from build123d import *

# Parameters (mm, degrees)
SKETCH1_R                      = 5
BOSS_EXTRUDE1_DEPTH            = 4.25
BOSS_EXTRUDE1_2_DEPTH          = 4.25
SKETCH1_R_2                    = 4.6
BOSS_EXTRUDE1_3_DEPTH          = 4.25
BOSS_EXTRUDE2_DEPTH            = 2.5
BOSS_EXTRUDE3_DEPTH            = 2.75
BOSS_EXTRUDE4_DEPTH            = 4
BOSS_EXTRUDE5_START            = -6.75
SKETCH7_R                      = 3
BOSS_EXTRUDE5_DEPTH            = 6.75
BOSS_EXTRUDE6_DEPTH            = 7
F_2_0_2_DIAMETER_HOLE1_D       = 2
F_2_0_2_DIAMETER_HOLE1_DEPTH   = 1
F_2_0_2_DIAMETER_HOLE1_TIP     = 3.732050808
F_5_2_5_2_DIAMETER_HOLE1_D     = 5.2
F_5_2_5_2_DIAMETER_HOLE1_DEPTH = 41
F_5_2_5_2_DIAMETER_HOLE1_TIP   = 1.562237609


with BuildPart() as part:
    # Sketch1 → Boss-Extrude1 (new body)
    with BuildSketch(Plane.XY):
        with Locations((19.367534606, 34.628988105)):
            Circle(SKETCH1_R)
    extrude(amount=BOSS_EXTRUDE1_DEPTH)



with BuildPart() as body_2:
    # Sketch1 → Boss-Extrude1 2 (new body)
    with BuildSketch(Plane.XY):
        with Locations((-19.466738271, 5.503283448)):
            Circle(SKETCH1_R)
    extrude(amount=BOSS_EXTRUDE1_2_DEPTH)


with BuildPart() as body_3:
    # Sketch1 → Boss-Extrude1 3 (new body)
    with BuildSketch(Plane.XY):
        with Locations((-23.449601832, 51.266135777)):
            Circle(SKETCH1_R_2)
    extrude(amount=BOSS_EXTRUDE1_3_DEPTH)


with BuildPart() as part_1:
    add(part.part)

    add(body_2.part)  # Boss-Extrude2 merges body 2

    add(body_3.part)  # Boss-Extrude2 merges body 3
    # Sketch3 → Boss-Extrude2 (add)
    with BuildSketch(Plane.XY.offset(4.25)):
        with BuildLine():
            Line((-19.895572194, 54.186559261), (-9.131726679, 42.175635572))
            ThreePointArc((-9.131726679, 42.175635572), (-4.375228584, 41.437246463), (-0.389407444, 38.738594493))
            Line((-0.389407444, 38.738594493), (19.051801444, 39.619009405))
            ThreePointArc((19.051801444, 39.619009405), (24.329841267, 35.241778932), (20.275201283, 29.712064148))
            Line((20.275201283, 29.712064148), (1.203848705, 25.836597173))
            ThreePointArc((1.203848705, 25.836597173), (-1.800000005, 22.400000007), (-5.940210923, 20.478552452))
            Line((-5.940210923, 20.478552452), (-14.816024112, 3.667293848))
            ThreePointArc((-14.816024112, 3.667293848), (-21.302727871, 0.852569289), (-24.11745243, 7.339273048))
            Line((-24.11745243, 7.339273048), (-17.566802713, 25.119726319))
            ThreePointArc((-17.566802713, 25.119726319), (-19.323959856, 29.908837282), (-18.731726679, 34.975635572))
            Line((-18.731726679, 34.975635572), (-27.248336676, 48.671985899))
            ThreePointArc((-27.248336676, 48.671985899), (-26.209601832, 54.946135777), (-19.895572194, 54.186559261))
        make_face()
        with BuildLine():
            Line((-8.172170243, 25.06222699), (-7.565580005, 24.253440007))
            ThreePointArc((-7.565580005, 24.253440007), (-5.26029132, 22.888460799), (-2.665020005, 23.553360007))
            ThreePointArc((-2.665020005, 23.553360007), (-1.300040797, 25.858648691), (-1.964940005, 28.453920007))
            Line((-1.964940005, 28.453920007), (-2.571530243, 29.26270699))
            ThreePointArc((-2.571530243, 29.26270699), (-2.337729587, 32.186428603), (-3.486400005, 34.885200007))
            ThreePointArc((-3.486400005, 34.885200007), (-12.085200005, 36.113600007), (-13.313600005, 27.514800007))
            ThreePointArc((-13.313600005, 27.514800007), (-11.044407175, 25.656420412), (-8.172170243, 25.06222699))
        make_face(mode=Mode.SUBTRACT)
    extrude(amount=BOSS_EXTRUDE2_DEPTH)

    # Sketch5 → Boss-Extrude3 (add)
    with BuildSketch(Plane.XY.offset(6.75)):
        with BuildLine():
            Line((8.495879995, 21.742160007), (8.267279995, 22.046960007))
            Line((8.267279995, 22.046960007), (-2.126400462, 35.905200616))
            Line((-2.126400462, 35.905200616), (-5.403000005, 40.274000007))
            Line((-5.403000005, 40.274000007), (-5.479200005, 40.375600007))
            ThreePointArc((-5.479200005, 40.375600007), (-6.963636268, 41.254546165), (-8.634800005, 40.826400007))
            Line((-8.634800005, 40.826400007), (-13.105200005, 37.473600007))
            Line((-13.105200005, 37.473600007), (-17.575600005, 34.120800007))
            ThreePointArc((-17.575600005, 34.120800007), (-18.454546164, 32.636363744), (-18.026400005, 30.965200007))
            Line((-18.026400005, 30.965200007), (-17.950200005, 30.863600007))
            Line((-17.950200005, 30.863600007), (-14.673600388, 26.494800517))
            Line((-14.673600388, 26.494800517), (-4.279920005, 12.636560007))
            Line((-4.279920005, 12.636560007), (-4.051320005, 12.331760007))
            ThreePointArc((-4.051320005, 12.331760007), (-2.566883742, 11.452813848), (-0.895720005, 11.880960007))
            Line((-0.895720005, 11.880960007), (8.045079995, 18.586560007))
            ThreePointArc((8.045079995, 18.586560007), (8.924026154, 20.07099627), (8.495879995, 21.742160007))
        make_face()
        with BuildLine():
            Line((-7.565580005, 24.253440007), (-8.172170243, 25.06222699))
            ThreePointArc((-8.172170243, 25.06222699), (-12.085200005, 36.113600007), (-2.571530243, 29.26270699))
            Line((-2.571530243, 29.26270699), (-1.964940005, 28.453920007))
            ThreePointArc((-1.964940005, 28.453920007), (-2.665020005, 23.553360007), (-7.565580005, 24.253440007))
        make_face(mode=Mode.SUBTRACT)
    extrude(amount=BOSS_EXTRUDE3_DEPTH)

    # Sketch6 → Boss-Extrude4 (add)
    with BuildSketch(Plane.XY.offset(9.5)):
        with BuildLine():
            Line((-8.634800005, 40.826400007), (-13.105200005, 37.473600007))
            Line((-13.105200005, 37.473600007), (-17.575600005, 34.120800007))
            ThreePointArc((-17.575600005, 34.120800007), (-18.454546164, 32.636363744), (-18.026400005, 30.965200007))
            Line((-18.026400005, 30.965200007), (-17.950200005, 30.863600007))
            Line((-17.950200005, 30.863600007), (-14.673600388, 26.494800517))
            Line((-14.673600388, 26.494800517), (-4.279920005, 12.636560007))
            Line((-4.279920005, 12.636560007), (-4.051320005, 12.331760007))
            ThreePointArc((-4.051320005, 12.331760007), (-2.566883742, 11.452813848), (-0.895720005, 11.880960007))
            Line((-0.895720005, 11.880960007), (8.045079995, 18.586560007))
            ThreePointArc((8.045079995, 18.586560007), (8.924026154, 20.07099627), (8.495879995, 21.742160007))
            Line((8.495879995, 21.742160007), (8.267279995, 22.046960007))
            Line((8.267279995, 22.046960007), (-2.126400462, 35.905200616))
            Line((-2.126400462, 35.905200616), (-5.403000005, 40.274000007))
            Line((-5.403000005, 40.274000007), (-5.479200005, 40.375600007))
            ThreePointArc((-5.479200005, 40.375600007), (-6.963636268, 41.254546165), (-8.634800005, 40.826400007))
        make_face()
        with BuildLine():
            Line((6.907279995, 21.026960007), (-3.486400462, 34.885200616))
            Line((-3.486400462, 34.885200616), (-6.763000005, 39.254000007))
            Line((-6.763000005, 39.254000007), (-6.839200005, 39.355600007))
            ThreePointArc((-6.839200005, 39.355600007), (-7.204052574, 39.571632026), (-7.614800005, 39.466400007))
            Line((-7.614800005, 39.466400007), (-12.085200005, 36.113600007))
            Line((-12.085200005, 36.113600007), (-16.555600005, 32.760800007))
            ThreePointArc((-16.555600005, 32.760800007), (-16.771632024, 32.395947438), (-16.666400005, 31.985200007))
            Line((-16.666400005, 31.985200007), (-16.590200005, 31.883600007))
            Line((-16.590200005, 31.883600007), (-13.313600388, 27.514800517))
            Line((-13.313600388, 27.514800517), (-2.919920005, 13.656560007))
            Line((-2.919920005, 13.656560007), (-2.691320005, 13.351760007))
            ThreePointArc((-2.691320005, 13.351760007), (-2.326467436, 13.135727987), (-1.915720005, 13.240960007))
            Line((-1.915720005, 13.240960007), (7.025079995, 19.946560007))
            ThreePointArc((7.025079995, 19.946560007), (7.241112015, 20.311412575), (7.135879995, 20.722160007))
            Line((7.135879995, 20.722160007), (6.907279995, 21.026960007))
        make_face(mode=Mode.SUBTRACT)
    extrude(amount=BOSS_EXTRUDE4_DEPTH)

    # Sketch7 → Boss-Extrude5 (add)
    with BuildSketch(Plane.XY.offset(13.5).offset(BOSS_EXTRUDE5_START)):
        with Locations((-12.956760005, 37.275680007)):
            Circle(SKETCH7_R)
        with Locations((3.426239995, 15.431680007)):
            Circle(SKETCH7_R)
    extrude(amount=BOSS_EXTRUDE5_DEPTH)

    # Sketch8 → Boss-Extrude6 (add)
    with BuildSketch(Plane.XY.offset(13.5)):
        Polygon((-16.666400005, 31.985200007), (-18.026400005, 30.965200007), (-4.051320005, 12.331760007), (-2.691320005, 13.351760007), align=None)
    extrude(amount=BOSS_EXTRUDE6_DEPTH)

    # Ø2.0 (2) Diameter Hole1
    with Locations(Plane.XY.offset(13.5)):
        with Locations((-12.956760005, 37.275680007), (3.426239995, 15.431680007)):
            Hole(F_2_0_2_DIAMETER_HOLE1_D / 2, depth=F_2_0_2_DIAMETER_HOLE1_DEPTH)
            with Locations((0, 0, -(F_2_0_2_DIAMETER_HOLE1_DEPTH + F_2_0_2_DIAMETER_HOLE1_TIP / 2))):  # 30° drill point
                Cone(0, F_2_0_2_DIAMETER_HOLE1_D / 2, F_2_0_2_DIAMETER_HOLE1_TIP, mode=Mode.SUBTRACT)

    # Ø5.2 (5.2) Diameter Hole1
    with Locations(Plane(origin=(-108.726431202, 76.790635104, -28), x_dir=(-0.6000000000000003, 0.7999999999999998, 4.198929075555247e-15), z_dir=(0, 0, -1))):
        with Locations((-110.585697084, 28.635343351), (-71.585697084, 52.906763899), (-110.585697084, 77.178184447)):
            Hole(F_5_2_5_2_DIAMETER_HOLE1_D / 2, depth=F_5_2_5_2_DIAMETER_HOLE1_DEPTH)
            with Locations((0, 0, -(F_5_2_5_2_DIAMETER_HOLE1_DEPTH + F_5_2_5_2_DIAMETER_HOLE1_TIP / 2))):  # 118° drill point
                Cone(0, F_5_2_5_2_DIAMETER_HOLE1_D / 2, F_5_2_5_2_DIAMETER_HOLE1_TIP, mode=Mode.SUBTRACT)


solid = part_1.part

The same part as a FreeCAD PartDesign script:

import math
import FreeCAD as App
import Part
import Sketcher
Q = App.Units.Quantity


def add_polygon(sketch, points):
    """Adds a closed chain of lines whose ends are joined by coincident constraints."""
    first, n = sketch.GeometryCount, len(points)
    for a, b in zip(points, points[1:] + points[:1]):
        sketch.addGeometry(Part.LineSegment(App.Vector(*a, 0), App.Vector(*b, 0)), False)
    for i in range(n):
        sketch.addConstraint(Sketcher.Constraint("Coincident", first + i, 2, first + (i + 1) % n, 1))

doc = App.newDocument("Part")
body = doc.addObject("PartDesign::Body", "Body")

# Sketch on XY plane
sketch1 = doc.addObject("Sketcher::SketchObject", "Sketch")
body.addObject(sketch1)
sketch1.AttachmentSupport = (doc.XY_Plane, [""])
sketch1.MapMode = "FlatFace"
sketch1.addGeometry(Part.Circle(App.Vector(19, 35, 0), App.Vector(0, 0, 1), 5), False)
sketch1.addConstraint([
    Sketcher.Constraint("Diameter", 0, Q("10 mm")),
    Sketcher.Constraint("DistanceY", -1, 1, 0, 3, Q("34.628988 mm")),
    Sketcher.Constraint("DistanceX", -1, 1, 0, 3, Q("19.367535 mm")),
])
pad1 = doc.addObject("PartDesign::Pad", "Pad")
body.addObject(pad1)
pad1.Profile = sketch1
pad1.Length = 4.25
body2 = doc.addObject("PartDesign::Body", "Body001")

# Sketch on XY plane
sketch2 = doc.addObject("Sketcher::SketchObject", "Sketch001")
body2.addObject(sketch2)
sketch2.AttachmentSupport = (doc.getObject("XY_Plane001"), [""])
sketch2.MapMode = "FlatFace"
sketch2.addGeometry(Part.Circle(App.Vector(-19, 6, 0), App.Vector(0, 0, 1), 5), False)
sketch2.addConstraint([
    Sketcher.Constraint("Diameter", 0, Q("10 mm")),
    Sketcher.Constraint("DistanceX", 0, 3, -1, 1, Q("19.466738 mm")),
    Sketcher.Constraint("DistanceY", -1, 1, 0, 3, Q("5.503283 mm")),
])
pad2 = doc.addObject("PartDesign::Pad", "Pad001")
body2.addObject(pad2)
pad2.Profile = sketch2
pad2.Length = 4.25
body3 = doc.addObject("PartDesign::Body", "Body002")

# Sketch on XY plane
sketch3 = doc.addObject("Sketcher::SketchObject", "Sketch002")
body3.addObject(sketch3)
sketch3.AttachmentSupport = (doc.getObject("XY_Plane002"), [""])
sketch3.MapMode = "FlatFace"
sketch3.addGeometry(Part.Circle(App.Vector(-23.4, 51.3, 0), App.Vector(0, 0, 1), 4.6), False)
sketch3.addConstraint([
    Sketcher.Constraint("Diameter", 0, Q("9.2 mm")),
    Sketcher.Constraint("DistanceX", 0, 3, -1, 1, Q("23.449602 mm")),
    Sketcher.Constraint("DistanceY", -1, 1, 0, 3, Q("51.266136 mm")),
])
pad3 = doc.addObject("PartDesign::Pad", "Pad002")
body3.addObject(pad3)
pad3.Profile = sketch3
pad3.Length = 4.25
body.AllowCompound = True
doc.recompute()

boolean = doc.addObject("PartDesign::Boolean", "Boolean")
body.addObject(boolean)
boolean.Type = "Fuse"
boolean.addObjects([body2])
doc.recompute()

boolean2 = doc.addObject("PartDesign::Boolean", "Boolean001")
body.addObject(boolean2)
boolean2.Type = "Fuse"
boolean2.addObjects([body3])

# Sketch on XY plane
sketch4 = doc.addObject("Sketcher::SketchObject", "Sketch003")
body.addObject(sketch4)
sketch4.AttachmentSupport = (doc.XY_Plane, [""])
sketch4.MapMode = "FlatFace"
sketch4.AttachmentOffset = App.Placement(App.Vector(0, 0, 4.25), App.Rotation())
sketch4.addGeometry([
    Part.LineSegment(App.Vector(-9.1, 42.2, 0), App.Vector(-19.9, 54.2, 0)),  # 0
    Part.ArcOfCircle(Part.Circle(App.Vector(-23.4, 51.3, 0), App.Vector(0, 0, 1), 4.6), math.radians(39), math.radians(214)),  # 1
    Part.LineSegment(App.Vector(-27.2, 48.7, 0), App.Vector(-18.7, 35, 0)),  # 2
    Part.ArcOfCircle(Part.Circle(App.Vector(-8.4, 31.2, 0), App.Vector(0, 0, 1), 11), math.radians(160), math.radians(214)),  # 3
    Part.LineSegment(App.Vector(-17.6, 25.1, 0), App.Vector(-24.1, 7.3, 0)),  # 4
    Part.ArcOfCircle(Part.Circle(App.Vector(-19.5, 5.5, 0), App.Vector(0, 0, 1), 5), math.radians(158), math.radians(338)),  # 5
    Part.LineSegment(App.Vector(-14.8, 3.7, 0), App.Vector(-5.9, 20.5, 0)),  # 6
    Part.ArcOfCircle(Part.Circle(App.Vector(-8.4, 31.2, 0), App.Vector(0, 0, 1), 11), math.radians(-77), math.radians(-29)),  # 7
    Part.LineSegment(App.Vector(1.2, 25.8, 0), App.Vector(20.3, 29.7, 0)),  # 8
    Part.ArcOfCircle(Part.Circle(App.Vector(19.4, 34.6, 0), App.Vector(0, 0, 1), 5), math.radians(-80), math.radians(94)),  # 9
    Part.LineSegment(App.Vector(19.1, 39.6, 0), App.Vector(-0.4, 38.7, 0)),  # 10
    Part.ArcOfCircle(Part.Circle(App.Vector(-8.4, 31.2, 0), App.Vector(0, 0, 1), 11), math.radians(43), math.radians(94)),  # 11
    Part.ArcOfCircle(Part.Circle(App.Vector(-8.4, 31.2, 0), App.Vector(0, 0, 1), 6.1), math.radians(-143), math.radians(-88)),  # 12
    Part.ArcOfCircle(Part.Circle(App.Vector(-8.4, 31.2, 0), App.Vector(0, 0, 1), 6.1), math.radians(37), math.radians(217)),  # 13
    Part.ArcOfCircle(Part.Circle(App.Vector(-8.4, 31.2, 0), App.Vector(0, 0, 1), 6.1), math.radians(-18), math.radians(37)),  # 14
    Part.LineSegment(App.Vector(-2.6, 29.3, 0), App.Vector(-2, 28.5, 0)),  # 15
    Part.ArcOfCircle(Part.Circle(App.Vector(-4.8, 26.4, 0), App.Vector(0, 0, 1), 3.5), math.radians(-53), math.radians(37)),  # 16
    Part.ArcOfCircle(Part.Circle(App.Vector(-4.8, 26.4, 0), App.Vector(0, 0, 1), 3.5), math.radians(-143), math.radians(-53)),  # 17
    Part.LineSegment(App.Vector(-7.6, 24.3, 0), App.Vector(-8.2, 25.1, 0)),  # 18
], False)
sketch4.addConstraint([
    Sketcher.Constraint("Coincident", 0, 2, 1, 1),
    Sketcher.Constraint("Coincident", 1, 2, 2, 1),
    Sketcher.Constraint("Coincident", 2, 2, 3, 1),
    Sketcher.Constraint("Coincident", 3, 2, 4, 1),
    Sketcher.Constraint("Coincident", 4, 2, 5, 1),
    Sketcher.Constraint("Coincident", 5, 2, 6, 1),
    Sketcher.Constraint("Coincident", 6, 2, 7, 1),
    Sketcher.Constraint("Coincident", 7, 2, 8, 1),
    Sketcher.Constraint("Coincident", 8, 2, 9, 1),
    Sketcher.Constraint("Coincident", 9, 2, 10, 1),
    Sketcher.Constraint("Coincident", 10, 2, 11, 1),
    Sketcher.Constraint("Coincident", 11, 2, 0, 1),
    Sketcher.Constraint("Tangent", 12, 1, 13, 2),
    Sketcher.Constraint("Tangent", 13, 1, 14, 2),
    Sketcher.Constraint("Coincident", 14, 1, 15, 1),
    Sketcher.Constraint("Tangent", 15, 2, 16, 2),
    Sketcher.Constraint("Tangent", 16, 1, 17, 2),
    Sketcher.Constraint("Tangent", 17, 1, 18, 1),
    Sketcher.Constraint("Coincident", 18, 2, 12, 2),
    Sketcher.Constraint("Coincident", 7, 3, 3, 3),
    Sketcher.Constraint("Coincident", 11, 3, 3, 3),
    Sketcher.Constraint("Coincident", 12, 3, 3, 3),
    Sketcher.Constraint("Equal", 3, 7),
    Sketcher.Constraint("Equal", 5, 9),
    Sketcher.Constraint("Equal", 7, 11),
    Sketcher.Constraint("Equal", 12, 13),
    Sketcher.Constraint("Equal", 13, 14),
    Sketcher.Constraint("Equal", 16, 17),
    Sketcher.Constraint("Parallel", 15, 18),
    Sketcher.Constraint("Equal", 0, 2),
    Sketcher.Constraint("Equal", 8, 10),
    Sketcher.Constraint("Equal", 15, 18),
    Sketcher.Constraint("Radius", 3, Q("11 mm")),
    Sketcher.Constraint("Radius", 5, Q("5 mm")),
    Sketcher.Constraint("Radius", 1, Q("4.6 mm")),
    Sketcher.Constraint("Radius", 12, Q("6.142 mm")),
    Sketcher.Constraint("DistanceX", 3, 3, -1, 1, Q("8.4 mm")),
    Sketcher.Constraint("DistanceY", -1, 1, 3, 3, Q("31.2 mm")),
    Sketcher.Constraint("Radius", 16, Q("3.5004 mm")),
    Sketcher.Constraint("DistanceX", 1, 3, -1, 1, Q("23.449602 mm")),
    Sketcher.Constraint("DistanceX", -1, 1, 8, 2, Q("20.275201 mm")),
    Sketcher.Constraint("DistanceX", -1, 1, 9, 2, Q("19.051801 mm")),
    Sketcher.Constraint("DistanceX", 12, 1, -1, 1, Q("13.3136 mm")),
    Sketcher.Constraint("DistanceX", 13, 1, -1, 1, Q("3.4864 mm")),
    Sketcher.Constraint("Distance", 0, Q("16.128319 mm")),
    Sketcher.Constraint("Distance", 4, Q("18.948761 mm")),
    Sketcher.Constraint("DistanceX", 5, 3, -1, 1, Q("19.466738 mm")),
    Sketcher.Constraint("DistanceY", -1, 1, 9, 3, Q("34.628988 mm")),
    Sketcher.Constraint("DistanceX", 16, 3, -1, 1, Q("4.76526 mm")),
    Sketcher.Constraint("DistanceY", -1, 1, 16, 3, Q("26.35368 mm")),
    Sketcher.Constraint("DistanceY", -1, 1, 0, 2, Q("54.186559 mm")),
    Sketcher.Constraint("DistanceX", 6, 2, -1, 1, Q("5.940211 mm")),
    Sketcher.Constraint("DistanceX", -1, 1, 7, 2, Q("1.203849 mm")),
    Sketcher.Constraint("DistanceY", -1, 1, 9, 2, Q("39.619009 mm")),
    Sketcher.Constraint("DistanceX", 16, 1, -1, 1, Q("2.66502 mm")),
    Sketcher.Constraint("DistanceX", 1, 3, 0, 2, Q("3.55403 mm")),
    Sketcher.Constraint("DistanceY", 1, 2, 1, 3, Q("2.59415 mm")),
    Sketcher.Constraint("DistanceY", 3, 2, 2, 2, Q("9.855909 mm")),
    Sketcher.Constraint("DistanceY", 5, 3, 4, 2, Q("1.83599 mm")),
    Sketcher.Constraint("DistanceY", 5, 2, 5, 3, Q("1.83599 mm")),
])
pad4 = doc.addObject("PartDesign::Pad", "Pad003")
body.addObject(pad4)
pad4.Profile = sketch4
pad4.Length = 2.5

# Sketch on XY plane
sketch5 = doc.addObject("Sketcher::SketchObject", "Sketch004")
body.addObject(sketch5)
sketch5.AttachmentSupport = (doc.XY_Plane, [""])
sketch5.MapMode = "FlatFace"
sketch5.AttachmentOffset = App.Placement(App.Vector(0, 0, 6.75), App.Rotation())
sketch5.addGeometry([
    Part.LineSegment(App.Vector(8.5, 21.74, 0), App.Vector(8.27, 22.05, 0)),  # 0
    Part.LineSegment(App.Vector(8.27, 22.05, 0), App.Vector(-2.13, 35.91, 0)),  # 1
    Part.LineSegment(App.Vector(-2.13, 35.91, 0), App.Vector(-5.4, 40.27, 0)),  # 2
    Part.LineSegment(App.Vector(-5.4, 40.27, 0), App.Vector(-5.48, 40.38, 0)),  # 3
    Part.ArcOfCircle(Part.Circle(App.Vector(-7.28, 39.02, 0), App.Vector(0, 0, 1), 2.25), math.radians(37), math.radians(127)),  # 4
    Part.LineSegment(App.Vector(-8.63, 40.83, 0), App.Vector(-17.58, 34.12, 0)),  # 5
    Part.ArcOfCircle(Part.Circle(App.Vector(-16.22, 32.32, 0), App.Vector(0, 0, 1), 2.25), math.radians(127), math.radians(217)),  # 6
    Part.LineSegment(App.Vector(-18.03, 30.97, 0), App.Vector(-17.95, 30.86, 0)),  # 7
    Part.LineSegment(App.Vector(-17.95, 30.86, 0), App.Vector(-14.67, 26.49, 0)),  # 8
    Part.LineSegment(App.Vector(-14.67, 26.49, 0), App.Vector(-4.28, 12.64, 0)),  # 9
    Part.LineSegment(App.Vector(-4.28, 12.64, 0), App.Vector(-4.05, 12.33, 0)),  # 10
    Part.ArcOfCircle(Part.Circle(App.Vector(-2.25, 13.68, 0), App.Vector(0, 0, 1), 2.25), math.radians(-143), math.radians(-53)),  # 11
    Part.LineSegment(App.Vector(-0.9, 11.88, 0), App.Vector(8.05, 18.59, 0)),  # 12
    Part.ArcOfCircle(Part.Circle(App.Vector(6.69, 20.39, 0), App.Vector(0, 0, 1), 2.25), math.radians(-53), math.radians(37)),  # 13
    Part.ArcOfCircle(Part.Circle(App.Vector(-4.77, 26.35, 0), App.Vector(0, 0, 1), 3.5), math.radians(-143), math.radians(37)),  # 14
    Part.LineSegment(App.Vector(-7.57, 24.25, 0), App.Vector(-8.17, 25.06, 0)),  # 15
    Part.ArcOfCircle(Part.Circle(App.Vector(-8.4, 31.2, 0), App.Vector(0, 0, 1), 6.14), math.radians(-18), math.radians(272)),  # 16
    Part.LineSegment(App.Vector(-2.57, 29.26, 0), App.Vector(-1.96, 28.45, 0)),  # 17
], False)
sketch5.addConstraint([
    Sketcher.Constraint("Coincident", 0, 2, 1, 1),
    Sketcher.Constraint("Coincident", 1, 2, 2, 1),
    Sketcher.Constraint("Coincident", 2, 2, 3, 1),
    Sketcher.Constraint("Tangent", 3, 2, 4, 1),
    Sketcher.Constraint("Tangent", 4, 2, 5, 1),
    Sketcher.Constraint("Tangent", 5, 2, 6, 1),
    Sketcher.Constraint("Tangent", 6, 2, 7, 1),
    Sketcher.Constraint("Coincident", 7, 2, 8, 1),
    Sketcher.Constraint("Coincident", 8, 2, 9, 1),
    Sketcher.Constraint("Coincident", 9, 2, 10, 1),
    Sketcher.Constraint("Tangent", 10, 2, 11, 1),
    Sketcher.Constraint("Tangent", 11, 2, 12, 1),
    Sketcher.Constraint("Tangent", 12, 2, 13, 1),
    Sketcher.Constraint("Tangent", 13, 2, 0, 1),
    Sketcher.Constraint("Tangent", 14, 1, 15, 1),
    Sketcher.Constraint("Coincident", 15, 2, 16, 2),
    Sketcher.Constraint("Coincident", 16, 1, 17, 1),
    Sketcher.Constraint("Tangent", 17, 2, 14, 2),
    Sketcher.Constraint("Equal", 4, 6),
    Sketcher.Constraint("Equal", 6, 11),
    Sketcher.Constraint("Equal", 11, 13),
    Sketcher.Constraint("Parallel", 0, 1),
    Sketcher.Constraint("Parallel", 1, 2),
    Sketcher.Constraint("Parallel", 2, 3),
    Sketcher.Constraint("Perpendicular", 3, 5),
    Sketcher.Constraint("Perpendicular", 5, 7),
    Sketcher.Constraint("Parallel", 7, 8),
    Sketcher.Constraint("Parallel", 8, 9),
    Sketcher.Constraint("Parallel", 9, 10),
    Sketcher.Constraint("Perpendicular", 10, 12),
    Sketcher.Constraint("Perpendicular", 12, 15),
    Sketcher.Constraint("Parallel", 15, 17),
    Sketcher.Constraint("Equal", 3, 7),
    Sketcher.Constraint("Equal", 2, 8),
    Sketcher.Constraint("Equal", 1, 9),
    Sketcher.Constraint("Equal", 15, 17),
    Sketcher.Constraint("Radius", 4, Q("2.254 mm")),
    Sketcher.Constraint("Radius", 16, Q("6.142 mm")),
    Sketcher.Constraint("DistanceX", 16, 3, -1, 1, Q("8.4 mm")),
    Sketcher.Constraint("DistanceY", -1, 1, 16, 3, Q("31.2 mm")),
    Sketcher.Constraint("Radius", 14, Q("3.5004 mm")),
    Sketcher.Constraint("Distance", 0, Q("0.381 mm")),
    Sketcher.Constraint("Distance", 2, Q("5.460999 mm")),
    Sketcher.Constraint("Distance", 3, Q("0.127 mm")),
    Sketcher.Constraint("Distance", 5, Q("11.176 mm")),
    Sketcher.Constraint("DistanceX", 2, 2, -1, 1, Q("5.403 mm")),
    Sketcher.Constraint("DistanceY", -1, 1, 2, 2, Q("40.274 mm")),
    Sketcher.Constraint("DistanceX", 4, 3, 1, 2, Q("5.156 mm")),
    Sketcher.Constraint("Distance", 1, Q("17.322801 mm")),
    Sketcher.Constraint("DistanceX", 14, 3, -1, 1, Q("4.76526 mm")),
])
pad5 = doc.addObject("PartDesign::Pad", "Pad004")
body.addObject(pad5)
pad5.Profile = sketch5
pad5.Length = 2.75

# Sketch on XY plane
sketch6 = doc.addObject("Sketcher::SketchObject", "Sketch005")
body.addObject(sketch6)
sketch6.AttachmentSupport = (doc.XY_Plane, [""])
sketch6.MapMode = "FlatFace"
sketch6.AttachmentOffset = App.Placement(App.Vector(0, 0, 9.5), App.Rotation())
sketch6.addGeometry([
    Part.LineSegment(App.Vector(-8.63, 40.83, 0), App.Vector(-17.58, 34.12, 0)),  # 0
    Part.ArcOfCircle(Part.Circle(App.Vector(-16.22, 32.32, 0), App.Vector(0, 0, 1), 2.25), math.radians(127), math.radians(217)),  # 1
    Part.LineSegment(App.Vector(-18.03, 30.97, 0), App.Vector(-17.95, 30.86, 0)),  # 2
    Part.LineSegment(App.Vector(-17.95, 30.86, 0), App.Vector(-14.67, 26.49, 0)),  # 3
    Part.LineSegment(App.Vector(-14.67, 26.49, 0), App.Vector(-4.28, 12.64, 0)),  # 4
    Part.LineSegment(App.Vector(-4.28, 12.64, 0), App.Vector(-4.05, 12.33, 0)),  # 5
    Part.ArcOfCircle(Part.Circle(App.Vector(-2.25, 13.68, 0), App.Vector(0, 0, 1), 2.25), math.radians(-143), math.radians(-53)),  # 6
    Part.LineSegment(App.Vector(-0.9, 11.88, 0), App.Vector(8.05, 18.59, 0)),  # 7
    Part.ArcOfCircle(Part.Circle(App.Vector(6.69, 20.39, 0), App.Vector(0, 0, 1), 2.25), math.radians(-53), math.radians(37)),  # 8
    Part.LineSegment(App.Vector(8.5, 21.74, 0), App.Vector(8.27, 22.05, 0)),  # 9
    Part.LineSegment(App.Vector(8.27, 22.05, 0), App.Vector(-2.13, 35.91, 0)),  # 10
    Part.LineSegment(App.Vector(-2.13, 35.91, 0), App.Vector(-5.4, 40.27, 0)),  # 11
    Part.LineSegment(App.Vector(-5.4, 40.27, 0), App.Vector(-5.48, 40.38, 0)),  # 12
    Part.ArcOfCircle(Part.Circle(App.Vector(-7.28, 39.02, 0), App.Vector(0, 0, 1), 2.25), math.radians(37), math.radians(127)),  # 13
    Part.LineSegment(App.Vector(-3.49, 34.89, 0), App.Vector(6.91, 21.03, 0)),  # 14
    Part.LineSegment(App.Vector(6.91, 21.03, 0), App.Vector(7.14, 20.72, 0)),  # 15
    Part.ArcOfCircle(Part.Circle(App.Vector(6.69, 20.39, 0), App.Vector(0, 0, 1), 0.55), math.radians(-53), math.radians(37)),  # 16
    Part.LineSegment(App.Vector(7.03, 19.95, 0), App.Vector(-1.92, 13.24, 0)),  # 17
    Part.ArcOfCircle(Part.Circle(App.Vector(-2.25, 13.68, 0), App.Vector(0, 0, 1), 0.55), math.radians(-143), math.radians(-53)),  # 18
    Part.LineSegment(App.Vector(-2.69, 13.35, 0), App.Vector(-2.92, 13.66, 0)),  # 19
    Part.LineSegment(App.Vector(-2.92, 13.66, 0), App.Vector(-13.31, 27.51, 0)),  # 20
    Part.LineSegment(App.Vector(-13.31, 27.51, 0), App.Vector(-16.59, 31.88, 0)),  # 21
    Part.LineSegment(App.Vector(-16.59, 31.88, 0), App.Vector(-16.67, 31.99, 0)),  # 22
    Part.ArcOfCircle(Part.Circle(App.Vector(-16.22, 32.32, 0), App.Vector(0, 0, 1), 0.55), math.radians(127), math.radians(217)),  # 23
    Part.LineSegment(App.Vector(-16.56, 32.76, 0), App.Vector(-7.61, 39.47, 0)),  # 24
    Part.ArcOfCircle(Part.Circle(App.Vector(-7.28, 39.02, 0), App.Vector(0, 0, 1), 0.55), math.radians(37), math.radians(127)),  # 25
    Part.LineSegment(App.Vector(-6.84, 39.36, 0), App.Vector(-6.76, 39.25, 0)),  # 26
    Part.LineSegment(App.Vector(-6.76, 39.25, 0), App.Vector(-3.49, 34.89, 0)),  # 27
], False)
sketch6.addConstraint([
    Sketcher.Constraint("Tangent", 0, 2, 1, 1),
    Sketcher.Constraint("Tangent", 1, 2, 2, 1),
    Sketcher.Constraint("Coincident", 2, 2, 3, 1),
    Sketcher.Constraint("Coincident", 3, 2, 4, 1),
    Sketcher.Constraint("Coincident", 4, 2, 5, 1),
    Sketcher.Constraint("Tangent", 5, 2, 6, 1),
    Sketcher.Constraint("Tangent", 6, 2, 7, 1),
    Sketcher.Constraint("Tangent", 7, 2, 8, 1),
    Sketcher.Constraint("Tangent", 8, 2, 9, 1),
    Sketcher.Constraint("Coincident", 9, 2, 10, 1),
    Sketcher.Constraint("Coincident", 10, 2, 11, 1),
    Sketcher.Constraint("Coincident", 11, 2, 12, 1),
    Sketcher.Constraint("Tangent", 12, 2, 13, 1),
    Sketcher.Constraint("Tangent", 13, 2, 0, 1),
    Sketcher.Constraint("Coincident", 14, 2, 15, 1),
    Sketcher.Constraint("Tangent", 15, 2, 16, 2),
    Sketcher.Constraint("Tangent", 16, 1, 17, 1),
    Sketcher.Constraint("Tangent", 17, 2, 18, 2),
    Sketcher.Constraint("Tangent", 18, 1, 19, 1),
    Sketcher.Constraint("Coincident", 19, 2, 20, 1),
    Sketcher.Constraint("Coincident", 20, 2, 21, 1),
    Sketcher.Constraint("Coincident", 21, 2, 22, 1),
    Sketcher.Constraint("Tangent", 22, 2, 23, 2),
    Sketcher.Constraint("Tangent", 23, 1, 24, 1),
    Sketcher.Constraint("Tangent", 24, 2, 25, 2),
    Sketcher.Constraint("Tangent", 25, 1, 26, 1),
    Sketcher.Constraint("Coincident", 26, 2, 27, 1),
    Sketcher.Constraint("Coincident", 27, 2, 14, 1),
    Sketcher.Constraint("Coincident", 16, 3, 8, 3),
    Sketcher.Constraint("Coincident", 18, 3, 6, 3),
    Sketcher.Constraint("Coincident", 23, 3, 1, 3),
    Sketcher.Constraint("Coincident", 25, 3, 13, 3),
    Sketcher.Constraint("Equal", 1, 6),
    Sketcher.Constraint("Equal", 6, 8),
    Sketcher.Constraint("Equal", 8, 13),
    Sketcher.Constraint("Equal", 16, 18),
    Sketcher.Constraint("Equal", 18, 23),
    Sketcher.Constraint("Equal", 23, 25),
    Sketcher.Constraint("Perpendicular", 0, 2),
    Sketcher.Constraint("Parallel", 2, 3),
    Sketcher.Constraint("Parallel", 3, 4),
    Sketcher.Constraint("Parallel", 4, 5),
    Sketcher.Constraint("Perpendicular", 5, 7),
    Sketcher.Constraint("Perpendicular", 7, 9),
    Sketcher.Constraint("Parallel", 9, 10),
    Sketcher.Constraint("Parallel", 10, 11),
    Sketcher.Constraint("Parallel", 11, 12),
    Sketcher.Constraint("Parallel", 12, 14),
    Sketcher.Constraint("Parallel", 14, 15),
    Sketcher.Constraint("Perpendicular", 17, 19),
    Sketcher.Constraint("Parallel", 19, 20),
    Sketcher.Constraint("Parallel", 20, 21),
    Sketcher.Constraint("Perpendicular", 24, 26),
    Sketcher.Constraint("Equal", 5, 9),
    Sketcher.Constraint("Equal", 4, 10),
    Sketcher.Constraint("Equal", 3, 11),
    Sketcher.Constraint("Equal", 10, 14),
    Sketcher.Constraint("Equal", 9, 15),
    Sketcher.Constraint("Equal", 15, 19),
    Sketcher.Constraint("Equal", 14, 20),
    Sketcher.Constraint("Equal", 11, 21),
    Sketcher.Constraint("Equal", 22, 26),
    Sketcher.Constraint("Radius", 1, Q("2.254 mm")),
    Sketcher.Constraint("Radius", 16, Q("0.554 mm")),
    Sketcher.Constraint("DistanceX", 14, 2, 9, 2, Q("1.36 mm")),
    Sketcher.Constraint("Distance", 0, Q("11.176 mm")),
    Sketcher.Constraint("Distance", 2, Q("0.127 mm")),
    Sketcher.Constraint("Distance", 3, Q("5.460999 mm")),
    Sketcher.Constraint("Distance", 5, Q("0.381 mm")),
    Sketcher.Constraint("DistanceX", 11, 2, -1, 1, Q("5.403 mm")),
    Sketcher.Constraint("DistanceY", -1, 1, 11, 2, Q("40.274 mm")),
    Sketcher.Constraint("Distance", 4, Q("17.322801 mm")),
])
pad6 = doc.addObject("PartDesign::Pad", "Pad005")
body.addObject(pad6)
pad6.Profile = sketch6
pad6.Length = 4

# Sketch on XY plane
sketch7 = doc.addObject("Sketcher::SketchObject", "Sketch006")
body.addObject(sketch7)
sketch7.AttachmentSupport = (doc.XY_Plane, [""])
sketch7.MapMode = "FlatFace"
sketch7.AttachmentOffset = App.Placement(App.Vector(0, 0, 6.75), App.Rotation())
sketch7.addGeometry([
    Part.Circle(App.Vector(-13, 37.3, 0), App.Vector(0, 0, 1), 3),
    Part.Circle(App.Vector(3.4, 15.4, 0), App.Vector(0, 0, 1), 3),
], False)
sketch7.addConstraint([
    Sketcher.Constraint("Equal", 0, 1),
    Sketcher.Constraint("Diameter", 0, Q("6 mm")),
    Sketcher.Constraint("DistanceX", 0, 3, 1, 3, Q("16.383 mm")),
    Sketcher.Constraint("DistanceY", 1, 3, 0, 3, Q("21.844 mm")),
    Sketcher.Constraint("DistanceX", 0, 3, -1, 1, Q("12.95676 mm")),
    Sketcher.Constraint("DistanceY", -1, 1, 0, 3, Q("37.27568 mm")),
])
pad7 = doc.addObject("PartDesign::Pad", "Pad006")
body.addObject(pad7)
pad7.Profile = sketch7
pad7.Length = 6.75

# Sketch on XY plane
sketch8 = doc.addObject("Sketcher::SketchObject", "Sketch007")
body.addObject(sketch8)
sketch8.AttachmentSupport = (doc.XY_Plane, [""])
sketch8.MapMode = "FlatFace"
sketch8.AttachmentOffset = App.Placement(App.Vector(0, 0, 13.5), App.Rotation())
add_polygon(sketch8, [(-16.7, 32), (-18, 31), (-4.1, 12.3), (-2.7, 13.4)])  # lines 0-3
sketch8.addConstraint([
    Sketcher.Constraint("Perpendicular", 0, 1),
    Sketcher.Constraint("Perpendicular", 1, 2),
    Sketcher.Constraint("Perpendicular", 2, 3),
    Sketcher.Constraint("Distance", 0, Q("1.7 mm")),
    Sketcher.Constraint("DistanceX", 1, 2, 2, 2, Q("1.36 mm")),
    Sketcher.Constraint("Distance", 1, Q("23.2918 mm")),
    Sketcher.Constraint("DistanceX", 0, 2, -1, 1, Q("18.0264 mm")),
    Sketcher.Constraint("DistanceY", -1, 1, 0, 2, Q("30.9652 mm")),
])
pad8 = doc.addObject("PartDesign::Pad", "Pad007")
body.addObject(pad8)
pad8.Profile = sketch8
pad8.Length = 7

# Sketch on XY plane
sketch9 = doc.addObject("Sketcher::SketchObject", "Sketch008")
body.addObject(sketch9)
sketch9.AttachmentSupport = (doc.XY_Plane, [""])
sketch9.MapMode = "FlatFace"
sketch9.AttachmentOffset = App.Placement(App.Vector(0, 0, 13.5), App.Rotation())
sketch9.addGeometry([
    Part.Circle(App.Vector(-13, 37.3, 0), App.Vector(0, 0, 1), 1),
    Part.Circle(App.Vector(3.4, 15.4, 0), App.Vector(0, 0, 1), 1),
], False)
sketch9.addConstraint([
    Sketcher.Constraint("Equal", 0, 1),
    Sketcher.Constraint("Diameter", 0, Q("2 mm")),
    Sketcher.Constraint("DistanceX", 0, 3, 1, 3, Q("16.383 mm")),
    Sketcher.Constraint("DistanceY", 1, 3, 0, 3, Q("21.844 mm")),
    Sketcher.Constraint("DistanceX", 0, 3, -1, 1, Q("12.95676 mm")),
    Sketcher.Constraint("DistanceY", -1, 1, 0, 3, Q("37.27568 mm")),
])
doc.recompute()
hole = doc.addObject("PartDesign::Hole", "Hole")
body.addObject(hole)
hole.Profile = sketch9
hole.ThreadType = "None"
hole.Diameter = 2
hole.DepthType = "Dimension"
hole.Depth = 1
hole.DrillPoint = "Angled"
hole.DrillPointAngle = 30

# Sketch on XY plane
sketch10 = doc.addObject("Sketcher::SketchObject", "Sketch009")
body.addObject(sketch10)
sketch10.AttachmentSupport = (doc.XY_Plane, [""])
sketch10.MapMode = "FlatFace"
sketch10.AttachmentOffset = App.Placement(App.Vector(0, 0, -28), App.Rotation())
sketch10.addGeometry([
    Part.Circle(App.Vector(-19.5, 5.5, 0), App.Vector(0, 0, 1), 2.6),
    Part.Circle(App.Vector(-23.4, 51.3, 0), App.Vector(0, 0, 1), 2.6),
    Part.Circle(App.Vector(19.4, 34.6, 0), App.Vector(0, 0, 1), 2.6),
], False)
sketch10.addConstraint([
    Sketcher.Constraint("Equal", 0, 1),
    Sketcher.Constraint("Equal", 1, 2),
    Sketcher.Constraint("Diameter", 0, Q("5.2 mm")),
    Sketcher.Constraint("DistanceX", 1, 3, -1, 1, Q("23.449602 mm")),
    Sketcher.Constraint("DistanceX", 0, 3, -1, 1, Q("19.466738 mm")),
    Sketcher.Constraint("DistanceY", -1, 1, 2, 3, Q("34.628988 mm")),
    Sketcher.Constraint("DistanceY", -1, 1, 0, 3, Q("5.503283 mm")),
    Sketcher.Constraint("DistanceY", -1, 1, 1, 3, Q("51.266136 mm")),
    Sketcher.Constraint("DistanceX", -1, 1, 2, 3, Q("19.367535 mm")),
])
doc.recompute()
hole2 = doc.addObject("PartDesign::Hole", "Hole001")
body.addObject(hole2)
hole2.Profile = sketch10
hole2.ThreadType = "None"
hole2.Diameter = 5.2
hole2.DepthType = "Dimension"
hole2.Depth = 41
hole2.DrillPoint = "Angled"
hole2.DrillPointAngle = 118
hole2.Reversed = True

doc.recompute()
